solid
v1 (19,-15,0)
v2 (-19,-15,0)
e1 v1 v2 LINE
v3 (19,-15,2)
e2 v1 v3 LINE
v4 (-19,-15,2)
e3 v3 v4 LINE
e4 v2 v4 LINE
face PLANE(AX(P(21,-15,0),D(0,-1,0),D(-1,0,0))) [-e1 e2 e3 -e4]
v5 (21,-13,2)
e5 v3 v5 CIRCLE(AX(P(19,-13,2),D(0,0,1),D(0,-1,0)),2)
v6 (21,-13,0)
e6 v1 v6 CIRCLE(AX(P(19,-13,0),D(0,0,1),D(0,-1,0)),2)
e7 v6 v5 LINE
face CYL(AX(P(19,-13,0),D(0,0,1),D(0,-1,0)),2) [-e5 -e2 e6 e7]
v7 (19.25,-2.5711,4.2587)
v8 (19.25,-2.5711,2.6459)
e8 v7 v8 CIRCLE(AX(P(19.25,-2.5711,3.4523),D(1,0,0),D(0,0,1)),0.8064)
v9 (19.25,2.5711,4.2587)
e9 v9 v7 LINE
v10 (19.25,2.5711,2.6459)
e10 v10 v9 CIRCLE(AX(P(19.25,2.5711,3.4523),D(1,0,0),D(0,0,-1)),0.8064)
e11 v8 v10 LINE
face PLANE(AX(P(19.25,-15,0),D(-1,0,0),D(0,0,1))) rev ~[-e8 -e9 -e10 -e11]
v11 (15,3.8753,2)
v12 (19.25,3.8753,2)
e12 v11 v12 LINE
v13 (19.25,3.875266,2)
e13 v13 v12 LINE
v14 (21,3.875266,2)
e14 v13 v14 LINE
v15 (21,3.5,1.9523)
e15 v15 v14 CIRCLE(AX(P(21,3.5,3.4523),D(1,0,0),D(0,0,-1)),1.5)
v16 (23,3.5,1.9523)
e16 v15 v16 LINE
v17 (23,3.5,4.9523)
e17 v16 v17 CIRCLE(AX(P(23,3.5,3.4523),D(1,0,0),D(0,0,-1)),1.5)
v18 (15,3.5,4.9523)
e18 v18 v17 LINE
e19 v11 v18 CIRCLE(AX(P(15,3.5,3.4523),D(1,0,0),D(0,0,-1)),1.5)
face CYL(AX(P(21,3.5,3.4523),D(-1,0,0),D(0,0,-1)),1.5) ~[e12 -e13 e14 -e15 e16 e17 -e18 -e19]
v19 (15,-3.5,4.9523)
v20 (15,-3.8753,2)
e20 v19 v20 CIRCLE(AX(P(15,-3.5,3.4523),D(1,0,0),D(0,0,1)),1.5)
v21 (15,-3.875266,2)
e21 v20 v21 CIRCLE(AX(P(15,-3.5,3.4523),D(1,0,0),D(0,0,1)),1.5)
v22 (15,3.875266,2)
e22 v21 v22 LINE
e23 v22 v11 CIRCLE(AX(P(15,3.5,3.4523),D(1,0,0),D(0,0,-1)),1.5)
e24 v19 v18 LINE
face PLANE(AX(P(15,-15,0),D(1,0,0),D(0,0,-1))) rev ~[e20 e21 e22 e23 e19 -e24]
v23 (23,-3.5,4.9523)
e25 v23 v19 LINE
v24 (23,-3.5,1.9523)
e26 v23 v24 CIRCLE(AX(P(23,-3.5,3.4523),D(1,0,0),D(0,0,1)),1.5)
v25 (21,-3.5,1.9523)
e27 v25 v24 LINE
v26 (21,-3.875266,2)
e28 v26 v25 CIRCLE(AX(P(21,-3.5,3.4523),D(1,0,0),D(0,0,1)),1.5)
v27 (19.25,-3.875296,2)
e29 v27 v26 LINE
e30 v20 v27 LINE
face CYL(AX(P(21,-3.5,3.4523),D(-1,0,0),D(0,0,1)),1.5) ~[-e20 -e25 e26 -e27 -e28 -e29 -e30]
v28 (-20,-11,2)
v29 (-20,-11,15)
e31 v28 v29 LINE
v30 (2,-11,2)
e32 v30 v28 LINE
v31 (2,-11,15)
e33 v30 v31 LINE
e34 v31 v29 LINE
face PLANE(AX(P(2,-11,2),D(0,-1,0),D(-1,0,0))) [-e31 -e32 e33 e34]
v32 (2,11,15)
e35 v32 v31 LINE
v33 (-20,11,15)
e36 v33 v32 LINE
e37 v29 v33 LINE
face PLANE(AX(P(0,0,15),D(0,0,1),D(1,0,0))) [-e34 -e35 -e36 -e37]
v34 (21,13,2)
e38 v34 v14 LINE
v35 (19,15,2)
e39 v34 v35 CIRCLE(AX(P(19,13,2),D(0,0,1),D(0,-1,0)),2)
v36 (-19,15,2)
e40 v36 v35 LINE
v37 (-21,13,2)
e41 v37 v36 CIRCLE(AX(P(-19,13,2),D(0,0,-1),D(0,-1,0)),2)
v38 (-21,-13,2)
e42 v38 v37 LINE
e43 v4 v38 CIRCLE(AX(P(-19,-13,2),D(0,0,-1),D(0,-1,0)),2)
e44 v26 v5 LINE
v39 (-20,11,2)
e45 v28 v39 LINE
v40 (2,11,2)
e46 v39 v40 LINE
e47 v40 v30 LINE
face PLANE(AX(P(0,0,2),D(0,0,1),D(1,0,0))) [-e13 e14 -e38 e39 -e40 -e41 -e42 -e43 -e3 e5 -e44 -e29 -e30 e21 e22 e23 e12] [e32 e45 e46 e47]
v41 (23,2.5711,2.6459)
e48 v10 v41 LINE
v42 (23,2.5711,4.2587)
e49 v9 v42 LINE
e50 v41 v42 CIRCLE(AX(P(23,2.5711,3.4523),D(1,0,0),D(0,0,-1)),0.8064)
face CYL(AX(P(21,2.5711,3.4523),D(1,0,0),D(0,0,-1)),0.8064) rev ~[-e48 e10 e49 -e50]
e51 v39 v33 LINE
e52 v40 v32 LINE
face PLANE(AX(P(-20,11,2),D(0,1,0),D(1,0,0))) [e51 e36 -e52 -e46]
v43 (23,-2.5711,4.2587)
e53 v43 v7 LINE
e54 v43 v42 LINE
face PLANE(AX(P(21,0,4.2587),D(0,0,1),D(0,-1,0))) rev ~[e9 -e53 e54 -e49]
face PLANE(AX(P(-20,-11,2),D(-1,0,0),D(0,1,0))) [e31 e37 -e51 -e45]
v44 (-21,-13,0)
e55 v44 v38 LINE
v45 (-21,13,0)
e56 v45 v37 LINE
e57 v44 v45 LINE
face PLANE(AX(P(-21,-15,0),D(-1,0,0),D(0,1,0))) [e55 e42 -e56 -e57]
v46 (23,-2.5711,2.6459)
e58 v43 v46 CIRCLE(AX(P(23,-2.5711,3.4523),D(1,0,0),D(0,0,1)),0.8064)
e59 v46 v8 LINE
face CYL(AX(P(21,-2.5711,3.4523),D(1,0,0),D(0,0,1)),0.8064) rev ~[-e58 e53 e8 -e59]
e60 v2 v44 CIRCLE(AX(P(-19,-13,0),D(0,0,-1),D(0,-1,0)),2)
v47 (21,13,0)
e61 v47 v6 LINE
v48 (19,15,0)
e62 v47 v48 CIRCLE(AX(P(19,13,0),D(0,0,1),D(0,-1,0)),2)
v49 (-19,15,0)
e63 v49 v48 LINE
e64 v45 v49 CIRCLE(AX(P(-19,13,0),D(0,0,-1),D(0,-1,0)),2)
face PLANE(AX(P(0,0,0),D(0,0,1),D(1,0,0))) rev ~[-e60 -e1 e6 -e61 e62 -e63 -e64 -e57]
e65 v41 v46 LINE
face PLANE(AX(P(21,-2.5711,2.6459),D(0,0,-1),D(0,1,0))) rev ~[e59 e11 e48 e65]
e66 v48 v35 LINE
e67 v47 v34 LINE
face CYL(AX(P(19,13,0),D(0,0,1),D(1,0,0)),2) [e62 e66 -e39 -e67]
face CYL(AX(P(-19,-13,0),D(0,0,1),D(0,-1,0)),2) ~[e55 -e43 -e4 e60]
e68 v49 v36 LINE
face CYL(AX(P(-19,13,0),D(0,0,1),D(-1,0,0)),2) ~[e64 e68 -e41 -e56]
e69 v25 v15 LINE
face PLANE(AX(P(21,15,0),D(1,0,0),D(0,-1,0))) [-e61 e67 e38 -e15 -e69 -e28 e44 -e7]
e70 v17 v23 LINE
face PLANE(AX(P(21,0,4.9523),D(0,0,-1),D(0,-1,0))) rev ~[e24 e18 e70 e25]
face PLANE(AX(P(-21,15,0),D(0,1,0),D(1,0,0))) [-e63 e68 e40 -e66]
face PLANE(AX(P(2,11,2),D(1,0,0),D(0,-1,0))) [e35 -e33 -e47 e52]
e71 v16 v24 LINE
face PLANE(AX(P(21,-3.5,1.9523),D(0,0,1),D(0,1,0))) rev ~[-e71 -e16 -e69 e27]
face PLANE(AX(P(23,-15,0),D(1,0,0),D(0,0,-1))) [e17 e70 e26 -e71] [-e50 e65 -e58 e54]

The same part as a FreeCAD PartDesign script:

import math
import FreeCAD as App
import Part
import Sketcher


def edges_at(feature, points):
    """Names of the edges that pass closest to the given points."""
    edges = feature.Shape.Edges
    near = lambda p: min(range(len(edges)), key=lambda i: edges[i].distToShape(Part.Vertex(*p))[0])
    return sorted({f"Edge{near(p) + 1}" for p in points})

doc = App.newDocument("Part")
body = doc.addObject("PartDesign::Body", "Body")

# Sketch on XY plane
sketch1 = body.newObject("Sketcher::SketchObject", "Sketch")
sketch1.AttachmentSupport = (doc.getObject("XY_Plane"), [""])
sketch1.MapMode = "FlatFace"
sketch1.addGeometry([
    Part.LineSegment(App.Vector(-21, -15, 0), App.Vector(21, -15, 0)),
    Part.LineSegment(App.Vector(21, -15, 0), App.Vector(21, 15, 0)),
    Part.LineSegment(App.Vector(21, 15, 0), App.Vector(-21, 15, 0)),
    Part.LineSegment(App.Vector(-21, 15, 0), App.Vector(-21, -15, 0)),
], False)
sketch1.addConstraint([
    Sketcher.Constraint("Coincident", 0, 2, 1, 1),
    Sketcher.Constraint("Coincident", 1, 2, 2, 1),
    Sketcher.Constraint("Coincident", 2, 2, 3, 1),
    Sketcher.Constraint("Coincident", 3, 2, 0, 1),
    Sketcher.Constraint("Horizontal", 0),
    Sketcher.Constraint("Vertical", 1),
    Sketcher.Constraint("Horizontal", 2),
    Sketcher.Constraint("Vertical", 3),
    Sketcher.Constraint("Symmetric", 0, 2, 2, 2, -1, 1),
    Sketcher.Constraint("DistanceX", 0, 1, 0, 2, 42.0),
    Sketcher.Constraint("DistanceY", 1, 1, 1, 2, 30.0),
])
pad1 = body.newObject("PartDesign::Pad", "Pad")
pad1.Profile = sketch1
pad1.Length = 2

# Sketch on XY plane
sketch2 = body.newObject("Sketcher::SketchObject", "Sketch001")
sketch2.AttachmentSupport = (doc.getObject("XY_Plane"), [""])
sketch2.MapMode = "FlatFace"
sketch2.AttachmentOffset = App.Placement(App.Vector(0, 0, 2), App.Rotation())
sketch2.addGeometry([
    Part.LineSegment(App.Vector(-20, -11, 0), App.Vector(2, -11, 0)),
    Part.LineSegment(App.Vector(2, -11, 0), App.Vector(2, 11, 0)),
    Part.LineSegment(App.Vector(2, 11, 0), App.Vector(-20, 11, 0)),
    Part.LineSegment(App.Vector(-20, 11, 0), App.Vector(-20, -11, 0)),
], False)
sketch2.addConstraint([
    Sketcher.Constraint("Coincident", 0, 2, 1, 1),
    Sketcher.Constraint("Coincident", 1, 2, 2, 1),
    Sketcher.Constraint("Coincident", 2, 2, 3, 1),
    Sketcher.Constraint("Coincident", 3, 2, 0, 1),
    Sketcher.Constraint("Horizontal", 0),
    Sketcher.Constraint("Vertical", 1),
    Sketcher.Constraint("Horizontal", 2),
    Sketcher.Constraint("Vertical", 3),
    Sketcher.Constraint("Equal", 2, 1),
    Sketcher.Constraint("DistanceX", 0, 1, 0, 2, 22.0),
    Sketcher.Constraint("DistanceX", -1, 1, 0, 2, 2.0),
    Sketcher.Constraint("DistanceY", 0, 2, -1, 1, 11.0),
])
pad2 = body.newObject("PartDesign::Pad", "Pad001")
pad2.Profile = sketch2
pad2.Length = 13

# Sketch on YZ plane
sketch3 = body.newObject("Sketcher::SketchObject", "Sketch002")
sketch3.AttachmentSupport = (doc.getObject("YZ_Plane"), [""])
sketch3.MapMode = "FlatFace"
sketch3.AttachmentOffset = App.Placement(App.Vector(0, 0, 21), App.Rotation())
sketch3.addGeometry([
    Part.LineSegment(App.Vector(-3.5, 2, 0), App.Vector(3.5, 2, 0)),  # 0
    Part.ArcOfCircle(Part.Circle(App.Vector(3.5, 3.5, 0), App.Vector(0, 0, 1), 1.5), math.radians(-90), math.radians(90)),  # 1
    Part.LineSegment(App.Vector(3.5, 5, 0), App.Vector(-3.5, 5, 0)),  # 2
    Part.ArcOfCircle(Part.Circle(App.Vector(-3.5, 3.5, 0), App.Vector(0, 0, 1), 1.5), math.radians(90), math.radians(270)),  # 3
    Part.LineSegment(App.Vector(-2.6, 4.3, 0), App.Vector(2.6, 4.3, 0)),  # 4
    Part.ArcOfCircle(Part.Circle(App.Vector(2.6, 3.5, 0), App.Vector(0, 0, 1), 0.8), math.radians(-90), math.radians(90)),  # 5
    Part.LineSegment(App.Vector(2.6, 2.6, 0), App.Vector(-2.6, 2.6, 0)),  # 6
    Part.ArcOfCircle(Part.Circle(App.Vector(-2.6, 3.5, 0), App.Vector(0, 0, 1), 0.8), math.radians(90), math.radians(270)),  # 7
], False)
sketch3.addConstraint([
    Sketcher.Constraint("Tangent", 0, 2, 1, 1),
    Sketcher.Constraint("Tangent", 1, 2, 2, 1),
    Sketcher.Constraint("Tangent", 2, 2, 3, 1),
    Sketcher.Constraint("Tangent", 3, 2, 0, 1),
    Sketcher.Constraint("Tangent", 4, 2, 5, 2),
    Sketcher.Constraint("Tangent", 5, 1, 6, 1),
    Sketcher.Constraint("Tangent", 6, 2, 7, 2),
    Sketcher.Constraint("Tangent", 7, 1, 4, 1),
    Sketcher.Constraint("Horizontal", 0),
    Sketcher.Constraint("Horizontal", 2),
    Sketcher.Constraint("Horizontal", 4),
    Sketcher.Constraint("Horizontal", 6),
    Sketcher.Constraint("Horizontal", 3, 3, 5, 3),
    Sketcher.Constraint("Radius", 1, 1.5),
    Sketcher.Constraint("DistanceX", 0, 1, 0, 2, 7.0),
    Sketcher.Constraint("DistanceX", -1, 1, 1, 3, 3.5),
    Sketcher.Constraint("Radius", 5, 0.8064),
    Sketcher.Constraint("DistanceX", 4, 1, 4, 2, 5.1422),
    Sketcher.Constraint("DistanceX", -1, 1, 5, 3, 2.571),
    Sketcher.Constraint("DistanceY", -1, 1, 5, 1, 2.646),
])
pad3 = body.newObject("PartDesign::Pad", "Pad002")
pad3.Profile = sketch3
pad3.Length = 6
pad3.Reversed = True

# Sketch on YZ plane
sketch4 = body.newObject("Sketcher::SketchObject", "Sketch003")
sketch4.AttachmentSupport = (doc.getObject("YZ_Plane"), [""])
sketch4.MapMode = "FlatFace"
sketch4.AttachmentOffset = App.Placement(App.Vector(0, 0, 21), App.Rotation())
sketch4.addGeometry([
    Part.LineSegment(App.Vector(-3.5, 2, 0), App.Vector(3.5, 2, 0)),  # 0
    Part.ArcOfCircle(Part.Circle(App.Vector(3.5, 3.5, 0), App.Vector(0, 0, 1), 1.5), math.radians(-90), math.radians(90)),  # 1
    Part.LineSegment(App.Vector(3.5, 5, 0), App.Vector(-3.5, 5, 0)),  # 2
    Part.ArcOfCircle(Part.Circle(App.Vector(-3.5, 3.5, 0), App.Vector(0, 0, 1), 1.5), math.radians(90), math.radians(270)),  # 3
    Part.LineSegment(App.Vector(-2.6, 4.3, 0), App.Vector(2.6, 4.3, 0)),  # 4
    Part.ArcOfCircle(Part.Circle(App.Vector(2.6, 3.5, 0), App.Vector(0, 0, 1), 0.8), math.radians(-90), math.radians(90)),  # 5
    Part.LineSegment(App.Vector(2.6, 2.6, 0), App.Vector(-2.6, 2.6, 0)),  # 6
    Part.ArcOfCircle(Part.Circle(App.Vector(-2.6, 3.5, 0), App.Vector(0, 0, 1), 0.8), math.radians(90), math.radians(270)),  # 7
], False)
sketch4.addConstraint([
    Sketcher.Constraint("Tangent", 0, 2, 1, 1),
    Sketcher.Constraint("Tangent", 1, 2, 2, 1),
    Sketcher.Constraint("Tangent", 2, 2, 3, 1),
    Sketcher.Constraint("Tangent", 3, 2, 0, 1),
    Sketcher.Constraint("Tangent", 4, 2, 5, 2),
    Sketcher.Constraint("Tangent", 5, 1, 6, 1),
    Sketcher.Constraint("Tangent", 6, 2, 7, 2),
    Sketcher.Constraint("Tangent", 7, 1, 4, 1),
    Sketcher.Constraint("Horizontal", 0),
    Sketcher.Constraint("Horizontal", 2),
    Sketcher.Constraint("Horizontal", 4),
    Sketcher.Constraint("Horizontal", 6),
    Sketcher.Constraint("Horizontal", 3, 3, 5, 3),
    Sketcher.Constraint("Radius", 1, 1.5),
    Sketcher.Constraint("DistanceX", 0, 1, 0, 2, 7.0),
    Sketcher.Constraint("DistanceX", -1, 1, 1, 3, 3.5),
    Sketcher.Constraint("Radius", 5, 0.8064),
    Sketcher.Constraint("DistanceX", 4, 1, 4, 2, 5.1422),
    Sketcher.Constraint("DistanceX", -1, 1, 5, 3, 2.571),
    Sketcher.Constraint("DistanceY", -1, 1, 5, 1, 2.646),
])
pad4 = body.newObject("PartDesign::Pad", "Pad003")
pad4.Profile = sketch4
pad4.Length = 2

# Sketch on YZ plane
sketch5 = body.newObject("Sketcher::SketchObject", "Sketch004")
sketch5.AttachmentSupport = (doc.getObject("YZ_Plane"), [""])
sketch5.MapMode = "FlatFace"
sketch5.AttachmentOffset = App.Placement(App.Vector(0, 0, 15), App.Rotation())
sketch5.addGeometry([
    Part.LineSegment(App.Vector(3.9, 2, 0), App.Vector(-3.9, 2, 0)),
    Part.ArcOfCircle(Part.Circle(App.Vector(-3.5, 3.5, 0), App.Vector(0, 0, 1), 1.5), math.radians(90), math.radians(256)),
    Part.LineSegment(App.Vector(-3.5, 5, 0), App.Vector(3.5, 5, 0)),
    Part.ArcOfCircle(Part.Circle(App.Vector(3.5, 3.5, 0), App.Vector(0, 0, 1), 1.5), math.radians(-76), math.radians(90)),
], False)
sketch5.addConstraint([
    Sketcher.Constraint("Coincident", 0, 2, 1, 2),
    Sketcher.Constraint("Tangent", 1, 1, 2, 1),
    Sketcher.Constraint("Tangent", 2, 2, 3, 2),
    Sketcher.Constraint("Coincident", 3, 1, 0, 1),
    Sketcher.Constraint("Horizontal", 0),
    Sketcher.Constraint("Horizontal", 2),
    Sketcher.Constraint("Equal", 1, 3),
    Sketcher.Constraint("Radius", 1, 1.5),
    Sketcher.Constraint("DistanceX", 2, 1, 2, 2, 7.0),
    Sketcher.Constraint("DistanceY", -1, 1, 0, 2, 2.0),
    Sketcher.Constraint("DistanceX", 1, 3, -1, 1, 3.5),
    Sketcher.Constraint("DistanceX", 0, 2, 0, 1, 7.7506),
])
pad5 = body.newObject("PartDesign::Pad", "Pad004")
pad5.Profile = sketch5
pad5.Length = 4.25
doc.recompute()

fillet = body.newObject("PartDesign::Fillet", "Fillet")
fillet.Base = (pad5, edges_at(pad5, [
    (21, -15, 1),
    (-21, -15, 1),
    (21, 15, 1),
    (-21, 15, 1),
]))
fillet.Radius = 2

doc.recompute()
